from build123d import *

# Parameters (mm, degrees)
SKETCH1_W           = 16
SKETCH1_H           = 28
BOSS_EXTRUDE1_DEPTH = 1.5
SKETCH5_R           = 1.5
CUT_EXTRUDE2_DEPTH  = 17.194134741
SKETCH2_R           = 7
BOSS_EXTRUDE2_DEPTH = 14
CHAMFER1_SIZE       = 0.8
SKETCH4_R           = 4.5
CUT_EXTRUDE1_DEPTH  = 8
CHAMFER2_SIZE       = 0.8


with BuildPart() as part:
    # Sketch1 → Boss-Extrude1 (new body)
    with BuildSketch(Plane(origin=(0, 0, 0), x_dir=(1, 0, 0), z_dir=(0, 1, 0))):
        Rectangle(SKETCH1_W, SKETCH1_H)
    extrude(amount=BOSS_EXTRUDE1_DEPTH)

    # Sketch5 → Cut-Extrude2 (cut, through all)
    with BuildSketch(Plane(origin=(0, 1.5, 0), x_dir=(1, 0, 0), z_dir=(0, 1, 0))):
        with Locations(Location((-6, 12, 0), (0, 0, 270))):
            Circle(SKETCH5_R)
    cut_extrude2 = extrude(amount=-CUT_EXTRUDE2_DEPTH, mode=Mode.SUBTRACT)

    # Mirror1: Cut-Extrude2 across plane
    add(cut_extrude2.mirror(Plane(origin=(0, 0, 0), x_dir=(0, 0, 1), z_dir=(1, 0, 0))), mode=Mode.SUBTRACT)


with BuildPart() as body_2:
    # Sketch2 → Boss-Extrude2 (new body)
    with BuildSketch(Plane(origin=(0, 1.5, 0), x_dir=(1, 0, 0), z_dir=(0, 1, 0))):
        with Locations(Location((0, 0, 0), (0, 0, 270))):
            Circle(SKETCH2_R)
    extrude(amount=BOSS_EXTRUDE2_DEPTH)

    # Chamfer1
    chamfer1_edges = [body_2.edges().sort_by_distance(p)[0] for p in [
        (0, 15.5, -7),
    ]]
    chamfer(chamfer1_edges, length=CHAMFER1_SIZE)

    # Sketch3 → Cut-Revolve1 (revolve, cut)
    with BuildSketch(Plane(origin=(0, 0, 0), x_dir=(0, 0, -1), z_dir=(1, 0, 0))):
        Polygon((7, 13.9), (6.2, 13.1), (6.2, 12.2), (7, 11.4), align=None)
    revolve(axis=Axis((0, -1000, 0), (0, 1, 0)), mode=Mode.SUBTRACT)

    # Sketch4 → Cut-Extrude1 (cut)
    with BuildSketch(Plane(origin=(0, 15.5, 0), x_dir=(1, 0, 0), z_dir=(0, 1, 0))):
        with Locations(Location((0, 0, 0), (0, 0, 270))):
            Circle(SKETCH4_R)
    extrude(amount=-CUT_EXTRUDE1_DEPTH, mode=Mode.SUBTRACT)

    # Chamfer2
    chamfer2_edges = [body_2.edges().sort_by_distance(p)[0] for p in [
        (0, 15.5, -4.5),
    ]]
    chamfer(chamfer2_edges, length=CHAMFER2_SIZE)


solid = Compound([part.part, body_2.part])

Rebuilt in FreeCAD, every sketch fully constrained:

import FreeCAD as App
import Part
import Sketcher

V = App.Vector
Q = App.Units.Quantity


def edges_at(feature, points):
    """Names of the edges that pass closest to the given points."""
    edges = feature.Shape.Edges
    near = lambda p: min(range(len(edges)), key=lambda i: edges[i].distToShape(Part.Vertex(*p))[0])
    return sorted({f"Edge{near(p) + 1}" for p in points})


def add_polygon(sketch, points):
    """Adds a closed chain of lines whose ends are joined by coincident constraints."""
    first, n = sketch.GeometryCount, len(points)
    for a, b in zip(points, points[1:] + points[:1]):
        sketch.addGeometry(Part.LineSegment(App.Vector(*a, 0), App.Vector(*b, 0)), False)
    for i in range(n):
        sketch.addConstraint(Sketcher.Constraint("Coincident", first + i, 2, first + (i + 1) % n, 1))

doc = App.newDocument("Part")
body = doc.addObject("PartDesign::Body", "Body")

# Sketch on XZ plane
sketch1 = body.newObject("Sketcher::SketchObject", "Sketch")
sketch1.AttachmentSupport = (doc.getObject("XZ_Plane"), [""])
sketch1.MapMode = "FlatFace"
add_polygon(sketch1, [(-8, -14), (-8, 14), (8, 14), (8, -14)])  # lines 0-3
sketch1.addConstraint([
    Sketcher.Constraint("Vertical", 0),
    Sketcher.Constraint("Horizontal", 1),
    Sketcher.Constraint("Vertical", 2),
    Sketcher.Constraint("Horizontal", 3),
    Sketcher.Constraint("Symmetric", 0, 2, 2, 2, -1, 1),
    Sketcher.Constraint("DistanceX", 1, 1, 1, 2, Q("16 mm")),
    Sketcher.Constraint("DistanceY", 0, 1, 0, 2, Q("28 mm")),
])
pad1 = body.newObject("PartDesign::Pad", "Pad")
pad1.Profile = sketch1
pad1.Length = 1.5
pad1.Reversed = True

# Sketch on XZ plane
sketch2 = body.newObject("Sketcher::SketchObject", "Sketch001")
sketch2.AttachmentSupport = (doc.getObject("XZ_Plane"), [""])
sketch2.MapMode = "FlatFace"
sketch2.AttachmentOffset = App.Placement(V(0, 0, -1.5), App.Rotation())
sketch2.addGeometry(Part.Circle(V(-6, -12, 0), V(0, 0, 1), 1.5), False)
sketch2.addConstraint([
    Sketcher.Constraint("Diameter", 0, Q("3 mm")),
    Sketcher.Constraint("DistanceX", 0, 3, -1, 1, Q("6 mm")),
    Sketcher.Constraint("DistanceY", 0, 3, -1, 1, Q("12 mm")),
])
pocket1 = body.newObject("PartDesign::Pocket", "Pocket")
pocket1.Profile = sketch2
pocket1.Type = "ThroughAll"
pocket1.Reversed = True
doc.recompute()

mirrored = body.newObject("PartDesign::Mirrored", "Mirrored")
mirrored.Originals = [pocket1]
mirrored.MirrorPlane = (doc.getObject("YZ_Plane"), [""])
body.Tip = mirrored
body2 = doc.addObject("PartDesign::Body", "Body001")

# Sketch on XZ plane
sketch3 = body2.newObject("Sketcher::SketchObject", "Sketch002")
sketch3.AttachmentSupport = (doc.getObject("XZ_Plane001"), [""])
sketch3.MapMode = "FlatFace"
sketch3.AttachmentOffset = App.Placement(V(0, 0, -1.5), App.Rotation())
sketch3.addGeometry(Part.Circle(V(0, 0, 0), V(0, 0, 1), 7), False)
sketch3.addConstraint([
    Sketcher.Constraint("Coincident", 0, 3, -1, 1),
    Sketcher.Constraint("Diameter", 0, Q("14 mm")),
])
pad2 = body2.newObject("PartDesign::Pad", "Pad001")
pad2.Profile = sketch3
pad2.Length = 14
pad2.Reversed = True
doc.recompute()

chamfer = body2.newObject("PartDesign::Chamfer", "Chamfer")
chamfer.Base = (pad2, edges_at(pad2, [(0, 15.5, -7)]))
chamfer.Size = 0.8

# Sketch on YZ plane
sketch4 = body2.newObject("Sketcher::SketchObject", "Sketch003")
sketch4.AttachmentSupport = (doc.getObject("YZ_Plane001"), [""])
sketch4.MapMode = "FlatFace"
add_polygon(sketch4, [(13.9, -7), (13.1, -6.2), (12.2, -6.2), (11.4, -7)])  # lines 0-3
sketch4.addConstraint([
    Sketcher.Constraint("Horizontal", 1),
    Sketcher.Constraint("Horizontal", 3),
    Sketcher.Constraint("Perpendicular", 0, 2),
    Sketcher.Constraint("Equal", 0, 2),
    Sketcher.Constraint("DistanceX", 1, 2, 1, 1, Q("0.9 mm")),
    Sketcher.Constraint("DistanceX", 3, 1, 3, 2, Q("2.5 mm")),
    Sketcher.Constraint("DistanceY", 2, 2, -1, 1, Q("7 mm")),
    Sketcher.Constraint("DistanceX", -1, 1, 0, 2, Q("13.1 mm")),
])
groove = body2.newObject("PartDesign::Groove", "Groove")
groove.Profile = sketch4
groove.ReferenceAxis = (sketch4, ["H_Axis"])
groove.Angle = 360

# Sketch on XZ plane
sketch5 = body2.newObject("Sketcher::SketchObject", "Sketch004")
sketch5.AttachmentSupport = (doc.getObject("XZ_Plane001"), [""])
sketch5.MapMode = "FlatFace"
sketch5.AttachmentOffset = App.Placement(V(0, 0, -15.5), App.Rotation())
sketch5.addGeometry(Part.Circle(V(0, 0, 0), V(0, 0, 1), 4.5), False)
sketch5.addConstraint([
    Sketcher.Constraint("Coincident", 0, 3, -1, 1),
    Sketcher.Constraint("Diameter", 0, Q("9 mm")),
])
pocket2 = body2.newObject("PartDesign::Pocket", "Pocket001")
pocket2.Profile = sketch5
pocket2.Length = 8
pocket2.Reversed = True
doc.recompute()

chamfer2 = body2.newObject("PartDesign::Chamfer", "Chamfer001")
chamfer2.Base = (pocket2, edges_at(pocket2, [(0, 15.5, -4.5)]))
chamfer2.Size = 0.8

doc.recompute()
